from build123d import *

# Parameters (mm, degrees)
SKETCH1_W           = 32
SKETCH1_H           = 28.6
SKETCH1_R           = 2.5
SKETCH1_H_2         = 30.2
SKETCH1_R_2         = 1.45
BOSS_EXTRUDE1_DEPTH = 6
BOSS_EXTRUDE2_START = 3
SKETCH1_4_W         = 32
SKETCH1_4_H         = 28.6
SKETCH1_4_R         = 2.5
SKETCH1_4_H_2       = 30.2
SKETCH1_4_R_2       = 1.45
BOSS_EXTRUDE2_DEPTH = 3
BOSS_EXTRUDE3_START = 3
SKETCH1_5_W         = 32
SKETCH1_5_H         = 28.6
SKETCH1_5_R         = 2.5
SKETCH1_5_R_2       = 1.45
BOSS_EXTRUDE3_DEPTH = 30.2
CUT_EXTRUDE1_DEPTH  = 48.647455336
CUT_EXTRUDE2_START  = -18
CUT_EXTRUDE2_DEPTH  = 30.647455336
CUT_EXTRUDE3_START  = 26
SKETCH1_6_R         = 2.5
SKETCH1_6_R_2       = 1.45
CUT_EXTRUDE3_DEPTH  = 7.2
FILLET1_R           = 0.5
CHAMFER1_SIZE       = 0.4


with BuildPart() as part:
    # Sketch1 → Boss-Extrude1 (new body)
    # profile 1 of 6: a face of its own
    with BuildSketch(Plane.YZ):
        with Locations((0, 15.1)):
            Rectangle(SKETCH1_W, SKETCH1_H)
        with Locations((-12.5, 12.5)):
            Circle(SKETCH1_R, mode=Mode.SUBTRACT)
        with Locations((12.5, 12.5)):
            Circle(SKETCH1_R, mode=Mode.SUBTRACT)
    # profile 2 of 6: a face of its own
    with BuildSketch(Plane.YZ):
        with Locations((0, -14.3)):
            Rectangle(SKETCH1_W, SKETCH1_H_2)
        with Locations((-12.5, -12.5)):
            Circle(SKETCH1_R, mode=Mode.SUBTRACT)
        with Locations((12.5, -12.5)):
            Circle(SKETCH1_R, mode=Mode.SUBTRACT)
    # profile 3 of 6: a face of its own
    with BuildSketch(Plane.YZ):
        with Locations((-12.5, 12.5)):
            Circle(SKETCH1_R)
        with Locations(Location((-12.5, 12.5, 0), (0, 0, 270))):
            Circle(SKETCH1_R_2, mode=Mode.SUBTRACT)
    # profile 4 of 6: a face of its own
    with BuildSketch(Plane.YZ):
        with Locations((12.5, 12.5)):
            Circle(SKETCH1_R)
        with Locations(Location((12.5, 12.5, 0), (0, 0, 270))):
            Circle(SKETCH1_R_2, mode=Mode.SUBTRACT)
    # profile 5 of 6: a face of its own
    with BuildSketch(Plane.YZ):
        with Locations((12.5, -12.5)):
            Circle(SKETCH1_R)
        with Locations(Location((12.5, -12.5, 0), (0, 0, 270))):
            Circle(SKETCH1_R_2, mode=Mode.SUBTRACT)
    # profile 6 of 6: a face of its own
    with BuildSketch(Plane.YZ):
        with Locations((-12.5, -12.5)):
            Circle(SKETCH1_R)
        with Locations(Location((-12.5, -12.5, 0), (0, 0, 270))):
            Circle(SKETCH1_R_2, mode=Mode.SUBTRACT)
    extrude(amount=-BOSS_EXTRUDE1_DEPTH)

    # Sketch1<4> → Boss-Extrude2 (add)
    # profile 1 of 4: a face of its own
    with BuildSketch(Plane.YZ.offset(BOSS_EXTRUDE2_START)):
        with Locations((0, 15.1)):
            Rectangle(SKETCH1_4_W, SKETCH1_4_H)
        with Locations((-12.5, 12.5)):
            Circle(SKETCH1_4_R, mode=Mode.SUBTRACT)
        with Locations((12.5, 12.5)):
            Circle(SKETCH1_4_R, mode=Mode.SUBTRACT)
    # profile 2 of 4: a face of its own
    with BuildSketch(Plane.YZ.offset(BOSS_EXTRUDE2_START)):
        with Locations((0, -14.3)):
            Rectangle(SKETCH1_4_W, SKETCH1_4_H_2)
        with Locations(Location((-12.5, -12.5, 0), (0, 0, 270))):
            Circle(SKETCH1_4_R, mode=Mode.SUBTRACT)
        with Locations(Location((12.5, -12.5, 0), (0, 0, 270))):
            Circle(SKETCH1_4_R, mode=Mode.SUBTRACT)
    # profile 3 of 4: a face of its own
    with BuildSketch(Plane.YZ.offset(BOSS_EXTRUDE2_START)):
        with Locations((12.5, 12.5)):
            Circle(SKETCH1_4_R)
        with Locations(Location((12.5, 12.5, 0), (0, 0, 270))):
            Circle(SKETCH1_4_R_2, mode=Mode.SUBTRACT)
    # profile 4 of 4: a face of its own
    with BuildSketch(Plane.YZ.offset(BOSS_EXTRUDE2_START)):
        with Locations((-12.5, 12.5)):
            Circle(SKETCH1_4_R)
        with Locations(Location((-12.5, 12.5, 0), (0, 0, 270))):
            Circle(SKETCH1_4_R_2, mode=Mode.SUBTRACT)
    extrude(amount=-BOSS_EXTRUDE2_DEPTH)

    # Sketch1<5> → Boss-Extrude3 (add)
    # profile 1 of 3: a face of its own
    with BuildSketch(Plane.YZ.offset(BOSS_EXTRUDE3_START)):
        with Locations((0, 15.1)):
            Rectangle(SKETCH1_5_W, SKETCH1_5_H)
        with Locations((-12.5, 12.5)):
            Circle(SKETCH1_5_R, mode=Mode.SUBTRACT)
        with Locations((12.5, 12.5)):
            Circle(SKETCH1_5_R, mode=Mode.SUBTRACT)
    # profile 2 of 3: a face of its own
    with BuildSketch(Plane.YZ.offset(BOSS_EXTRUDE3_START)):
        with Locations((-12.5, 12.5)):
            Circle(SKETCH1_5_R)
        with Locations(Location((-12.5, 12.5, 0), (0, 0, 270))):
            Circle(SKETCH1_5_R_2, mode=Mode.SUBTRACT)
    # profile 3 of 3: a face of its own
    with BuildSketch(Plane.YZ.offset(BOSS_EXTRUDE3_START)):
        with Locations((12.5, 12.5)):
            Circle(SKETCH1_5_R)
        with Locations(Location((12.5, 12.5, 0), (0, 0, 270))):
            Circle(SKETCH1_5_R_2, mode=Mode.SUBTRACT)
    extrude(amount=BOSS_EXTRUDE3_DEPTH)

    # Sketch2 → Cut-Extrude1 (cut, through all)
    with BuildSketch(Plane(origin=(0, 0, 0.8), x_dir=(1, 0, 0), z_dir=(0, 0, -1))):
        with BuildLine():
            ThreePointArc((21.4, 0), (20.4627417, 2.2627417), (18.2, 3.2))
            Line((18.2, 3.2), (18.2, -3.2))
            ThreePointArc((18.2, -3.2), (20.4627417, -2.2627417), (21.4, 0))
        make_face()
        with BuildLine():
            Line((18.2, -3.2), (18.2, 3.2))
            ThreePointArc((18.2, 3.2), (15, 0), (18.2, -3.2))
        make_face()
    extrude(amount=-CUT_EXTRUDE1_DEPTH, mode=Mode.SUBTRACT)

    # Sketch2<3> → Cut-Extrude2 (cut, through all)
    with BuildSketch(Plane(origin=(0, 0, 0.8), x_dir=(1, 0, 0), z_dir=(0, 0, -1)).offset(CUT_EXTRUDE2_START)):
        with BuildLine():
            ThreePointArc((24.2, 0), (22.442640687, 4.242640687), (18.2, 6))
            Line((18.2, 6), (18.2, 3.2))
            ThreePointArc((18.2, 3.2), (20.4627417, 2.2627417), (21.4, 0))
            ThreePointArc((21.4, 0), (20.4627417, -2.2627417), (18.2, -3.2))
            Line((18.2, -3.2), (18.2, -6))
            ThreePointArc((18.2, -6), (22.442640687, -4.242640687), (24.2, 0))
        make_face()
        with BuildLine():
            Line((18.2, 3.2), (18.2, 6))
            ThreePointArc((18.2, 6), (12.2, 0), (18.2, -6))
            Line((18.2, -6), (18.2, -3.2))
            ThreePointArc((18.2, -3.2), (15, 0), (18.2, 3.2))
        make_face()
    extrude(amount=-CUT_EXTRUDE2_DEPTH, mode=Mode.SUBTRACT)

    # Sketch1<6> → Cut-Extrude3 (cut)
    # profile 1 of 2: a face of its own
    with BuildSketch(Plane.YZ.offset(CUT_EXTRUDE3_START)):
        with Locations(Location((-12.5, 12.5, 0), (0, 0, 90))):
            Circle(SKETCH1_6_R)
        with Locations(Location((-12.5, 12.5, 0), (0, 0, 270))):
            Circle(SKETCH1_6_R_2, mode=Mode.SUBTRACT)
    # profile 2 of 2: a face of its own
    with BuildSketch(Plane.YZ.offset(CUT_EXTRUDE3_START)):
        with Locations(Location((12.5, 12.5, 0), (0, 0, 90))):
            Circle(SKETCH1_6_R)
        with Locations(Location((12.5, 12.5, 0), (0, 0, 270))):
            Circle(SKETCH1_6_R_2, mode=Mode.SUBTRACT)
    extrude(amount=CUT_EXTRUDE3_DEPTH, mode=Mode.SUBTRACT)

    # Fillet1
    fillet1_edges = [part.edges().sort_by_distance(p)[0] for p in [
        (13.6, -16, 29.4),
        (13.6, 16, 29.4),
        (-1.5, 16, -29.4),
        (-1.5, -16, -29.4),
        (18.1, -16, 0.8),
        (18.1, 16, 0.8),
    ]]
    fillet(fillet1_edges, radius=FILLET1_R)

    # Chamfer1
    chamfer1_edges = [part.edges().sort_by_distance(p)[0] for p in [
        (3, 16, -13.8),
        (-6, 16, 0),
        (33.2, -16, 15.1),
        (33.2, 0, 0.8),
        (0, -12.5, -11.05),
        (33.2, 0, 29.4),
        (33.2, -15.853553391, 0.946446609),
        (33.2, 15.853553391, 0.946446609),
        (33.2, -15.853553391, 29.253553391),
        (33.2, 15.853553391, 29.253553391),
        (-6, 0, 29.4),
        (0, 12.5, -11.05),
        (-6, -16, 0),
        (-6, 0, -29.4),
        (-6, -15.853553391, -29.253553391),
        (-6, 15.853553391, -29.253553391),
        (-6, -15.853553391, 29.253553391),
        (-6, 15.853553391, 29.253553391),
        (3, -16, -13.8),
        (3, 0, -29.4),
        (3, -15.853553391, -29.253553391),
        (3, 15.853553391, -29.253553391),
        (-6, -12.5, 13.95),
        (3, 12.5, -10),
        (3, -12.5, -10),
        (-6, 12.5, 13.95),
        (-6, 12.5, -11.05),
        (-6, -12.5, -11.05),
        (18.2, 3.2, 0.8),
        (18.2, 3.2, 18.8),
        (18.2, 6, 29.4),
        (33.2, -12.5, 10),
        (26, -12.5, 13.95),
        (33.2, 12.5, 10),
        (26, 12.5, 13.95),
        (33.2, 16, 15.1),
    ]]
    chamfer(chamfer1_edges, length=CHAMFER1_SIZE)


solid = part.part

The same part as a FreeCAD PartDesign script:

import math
import FreeCAD as App
import Part
import Sketcher
from FreeCAD import Vector
Q = App.Units.Quantity


def edges_at(feature, points):
    """Names of the edges that pass closest to the given points."""
    edges = feature.Shape.Edges
    near = lambda p: min(range(len(edges)), key=lambda i: edges[i].distToShape(Part.Vertex(*p))[0])
    return sorted({f"Edge{near(p) + 1}" for p in points})

doc = App.newDocument("Part")
body = doc.addObject("PartDesign::Body", "Body")

sketch1 = body.newObject("Sketcher::SketchObject", "Sketch")
sketch1.AttachmentSupport = (doc.getObject("YZ_Plane"), [""])
sketch1.MapMode = "FlatFace"
sketch1.addGeometry([
    Part.LineSegment(Vector(-16, 29.4, 0), Vector(-16, -29.4, 0)),
    Part.LineSegment(Vector(-16, -29.4, 0), Vector(16, -29.4, 0)),
    Part.LineSegment(Vector(16, -29.4, 0), Vector(16, 29.4, 0)),
    Part.LineSegment(Vector(16, 29.4, 0), Vector(-16, 29.4, 0)),
    Part.Circle(Vector(-12.5, 12.5, 0), Vector(0, 0, 1), 1.45),
    Part.Circle(Vector(12.5, 12.5, 0), Vector(0, 0, 1), 1.45),
    Part.Circle(Vector(12.5, -12.5, 0), Vector(0, 0, 1), 1.45),
    Part.Circle(Vector(-12.5, -12.5, 0), Vector(0, 0, 1), 1.45),
], False)
sketch1.addConstraint([
    Sketcher.Constraint("Coincident", 0, 2, 1, 1),
    Sketcher.Constraint("Coincident", 1, 2, 2, 1),
    Sketcher.Constraint("Coincident", 2, 2, 3, 1),
    Sketcher.Constraint("Coincident", 3, 2, 0, 1),
    Sketcher.Constraint("Vertical", 0),
    Sketcher.Constraint("Horizontal", 1),
    Sketcher.Constraint("Vertical", 2),
    Sketcher.Constraint("Horizontal", 3),
    Sketcher.Constraint("Equal", 4, 5),
    Sketcher.Constraint("Equal", 5, 6),
    Sketcher.Constraint("Equal", 6, 7),
    Sketcher.Constraint("Symmetric", 4, 3, 6, 3, -1, 1),
    Sketcher.Constraint("Symmetric", 5, 3, 7, 3, -1, 1),
    Sketcher.Constraint("Symmetric", 0, 2, 2, 2, -1, 1),
    Sketcher.Constraint("Symmetric", 4, 3, 5, 3, -2),
    Sketcher.Constraint("Diameter", 4, Q("2.9 mm")),
    Sketcher.Constraint("DistanceX", 1, 1, 1, 2, Q("32 mm")),
    Sketcher.Constraint("DistanceY", 0, 2, 0, 1, Q("58.8 mm")),
    Sketcher.Constraint("DistanceX", 4, 3, 5, 3, Q("25 mm")),
    Sketcher.Constraint("DistanceY", 6, 3, 5, 3, Q("25 mm")),
])
pad1 = body.newObject("PartDesign::Pad", "Pad")
pad1.Profile = sketch1
pad1.Length = 6
pad1.Reversed = True

sketch2 = body.newObject("Sketcher::SketchObject", "Sketch001")
sketch2.AttachmentSupport = (doc.getObject("YZ_Plane"), [""])
sketch2.MapMode = "FlatFace"
sketch2.AttachmentOffset = App.Placement(Vector(0, 0, 3), App.Rotation())
sketch2.addGeometry([
    Part.LineSegment(Vector(-16, 29.4, 0), Vector(-16, -29.4, 0)),
    Part.LineSegment(Vector(-16, -29.4, 0), Vector(16, -29.4, 0)),
    Part.LineSegment(Vector(16, -29.4, 0), Vector(16, 29.4, 0)),
    Part.LineSegment(Vector(16, 29.4, 0), Vector(-16, 29.4, 0)),
    Part.Circle(Vector(12.5, -12.5, 0), Vector(0, 0, 1), 2.5),
    Part.Circle(Vector(-12.5, -12.5, 0), Vector(0, 0, 1), 2.5),
    Part.Circle(Vector(-12.5, 12.5, 0), Vector(0, 0, 1), 1.45),
    Part.Circle(Vector(12.5, 12.5, 0), Vector(0, 0, 1), 1.45),
], False)
sketch2.addConstraint([
    Sketcher.Constraint("Coincident", 0, 2, 1, 1),
    Sketcher.Constraint("Coincident", 1, 2, 2, 1),
    Sketcher.Constraint("Coincident", 2, 2, 3, 1),
    Sketcher.Constraint("Coincident", 3, 2, 0, 1),
    Sketcher.Constraint("Vertical", 0),
    Sketcher.Constraint("Horizontal", 1),
    Sketcher.Constraint("Vertical", 2),
    Sketcher.Constraint("Horizontal", 3),
    Sketcher.Constraint("Equal", 4, 5),
    Sketcher.Constraint("Equal", 6, 7),
    Sketcher.Constraint("Symmetric", 4, 3, 6, 3, -1, 1),
    Sketcher.Constraint("Symmetric", 5, 3, 7, 3, -1, 1),
    Sketcher.Constraint("Symmetric", 0, 2, 2, 2, -1, 1),
    Sketcher.Constraint("Symmetric", 4, 3, 5, 3, -2),
    Sketcher.Constraint("Diameter", 4, Q("5 mm")),
    Sketcher.Constraint("Diameter", 6, Q("2.9 mm")),
    Sketcher.Constraint("DistanceX", 1, 1, 1, 2, Q("32 mm")),
    Sketcher.Constraint("DistanceY", 0, 2, 0, 1, Q("58.8 mm")),
    Sketcher.Constraint("DistanceX", 5, 3, 4, 3, Q("25 mm")),
    Sketcher.Constraint("DistanceY", 5, 3, 6, 3, Q("25 mm")),
])
pad2 = body.newObject("PartDesign::Pad", "Pad001")
pad2.Profile = sketch2
pad2.Length = 3
pad2.Reversed = True

sketch3 = body.newObject("Sketcher::SketchObject", "Sketch002")
sketch3.AttachmentSupport = (doc.getObject("YZ_Plane"), [""])
sketch3.MapMode = "FlatFace"
sketch3.AttachmentOffset = App.Placement(Vector(0, 0, 3), App.Rotation())
sketch3.addGeometry([
    Part.LineSegment(Vector(-16, 29.4, 0), Vector(-16, 0.8, 0)),
    Part.LineSegment(Vector(-16, 0.8, 0), Vector(16, 0.8, 0)),
    Part.LineSegment(Vector(16, 0.8, 0), Vector(16, 29.4, 0)),
    Part.LineSegment(Vector(16, 29.4, 0), Vector(-16, 29.4, 0)),
    Part.Circle(Vector(-12.5, 12.5, 0), Vector(0, 0, 1), 1.45),
    Part.Circle(Vector(12.5, 12.5, 0), Vector(0, 0, 1), 1.45),
], False)
sketch3.addConstraint([
    Sketcher.Constraint("Coincident", 0, 2, 1, 1),
    Sketcher.Constraint("Coincident", 1, 2, 2, 1),
    Sketcher.Constraint("Coincident", 2, 2, 3, 1),
    Sketcher.Constraint("Coincident", 3, 2, 0, 1),
    Sketcher.Constraint("Vertical", 0),
    Sketcher.Constraint("Horizontal", 1),
    Sketcher.Constraint("Vertical", 2),
    Sketcher.Constraint("Horizontal", 3),
    Sketcher.Constraint("Equal", 4, 5),
    Sketcher.Constraint("Symmetric", 4, 3, 5, 3, -2),
    Sketcher.Constraint("Diameter", 4, Q("2.9 mm")),
    Sketcher.Constraint("DistanceX", 1, 1, 1, 2, Q("32 mm")),
    Sketcher.Constraint("DistanceY", 0, 2, 0, 1, Q("28.6 mm")),
    Sketcher.Constraint("DistanceX", 0, 2, -1, 1, Q("16 mm")),
    Sketcher.Constraint("DistanceX", 4, 3, 5, 3, Q("25 mm")),
    Sketcher.Constraint("DistanceY", -1, 1, 4, 3, Q("12.5 mm")),
    Sketcher.Constraint("DistanceY", -1, 1, 0, 2, Q("0.8 mm")),
])
pad3 = body.newObject("PartDesign::Pad", "Pad002")
pad3.Profile = sketch3
pad3.Length = 30.2

sketch4 = body.newObject("Sketcher::SketchObject", "Sketch003")
sketch4.AttachmentSupport = (doc.getObject("XY_Plane"), [""])
sketch4.MapMode = "FlatFace"
sketch4.AttachmentOffset = App.Placement(Vector(0, 0, 0.8), App.Rotation())
sketch4.addGeometry([
    Part.ArcOfCircle(Part.Circle(Vector(18.2, 0, 0), Vector(0, 0, 1), 3.2), math.radians(-90), math.radians(0)),
    Part.ArcOfCircle(Part.Circle(Vector(18.2, 0, 0), Vector(0, 0, 1), 3.2), math.radians(90), math.radians(270)),
    Part.ArcOfCircle(Part.Circle(Vector(18.2, 0, 0), Vector(0, 0, 1), 3.2), math.radians(0), math.radians(90)),
], False)
sketch4.addConstraint([
    Sketcher.Constraint("Tangent", 0, 1, 1, 2),
    Sketcher.Constraint("Tangent", 1, 1, 2, 2),
    Sketcher.Constraint("Tangent", 2, 1, 0, 2),
    Sketcher.Constraint("Symmetric", 0, 1, 1, 1, -1),
    Sketcher.Constraint("PointOnObject", 2, 1, -1),
    Sketcher.Constraint("Vertical", 2, 3, 0, 1),
    Sketcher.Constraint("Radius", 0, Q("3.2 mm")),
    Sketcher.Constraint("DistanceX", -1, 1, 0, 3, Q("18.2 mm")),
])
pocket1 = body.newObject("PartDesign::Pocket", "Pocket")
pocket1.Profile = sketch4
pocket1.Type = "ThroughAll"
pocket1.Reversed = True

sketch5 = body.newObject("Sketcher::SketchObject", "Sketch004")
sketch5.AttachmentSupport = (doc.getObject("XY_Plane"), [""])
sketch5.MapMode = "FlatFace"
sketch5.AttachmentOffset = App.Placement(Vector(0, 0, 18.8), App.Rotation())
sketch5.addGeometry([
    Part.ArcOfCircle(Part.Circle(Vector(18.2, 0, 0), Vector(0, 0, 1), 6), math.radians(-90), math.radians(0)),
    Part.ArcOfCircle(Part.Circle(Vector(18.2, 0, 0), Vector(0, 0, 1), 6), math.radians(90), math.radians(270)),
    Part.ArcOfCircle(Part.Circle(Vector(18.2, 0, 0), Vector(0, 0, 1), 6), math.radians(0), math.radians(90)),
    Part.ArcOfCircle(Part.Circle(Vector(18.2, 0, 0), Vector(0, 0, 1), 3.2), math.radians(0), math.radians(90)),
    Part.ArcOfCircle(Part.Circle(Vector(18.2, 0, 0), Vector(0, 0, 1), 3.2), math.radians(90), math.radians(270)),
    Part.ArcOfCircle(Part.Circle(Vector(18.2, 0, 0), Vector(0, 0, 1), 3.2), math.radians(-90), math.radians(0)),
], False)
sketch5.addConstraint([
    Sketcher.Constraint("Tangent", 0, 1, 1, 2),
    Sketcher.Constraint("Tangent", 1, 1, 2, 2),
    Sketcher.Constraint("Tangent", 2, 1, 0, 2),
    Sketcher.Constraint("Tangent", 3, 2, 4, 1),
    Sketcher.Constraint("Tangent", 4, 2, 5, 1),
    Sketcher.Constraint("Tangent", 5, 2, 3, 1),
    Sketcher.Constraint("Coincident", 3, 3, 0, 3),
    Sketcher.Constraint("Symmetric", 0, 1, 1, 1, -1),
    Sketcher.Constraint("PointOnObject", 2, 1, -1),
    Sketcher.Constraint("PointOnObject", 5, 2, -1),
    Sketcher.Constraint("Vertical", 5, 3, 0, 1),
    Sketcher.Constraint("Vertical", 1, 1, 3, 2),
    Sketcher.Constraint("Vertical", 3, 2, 4, 2),
    Sketcher.Constraint("Radius", 0, Q("6 mm")),
    Sketcher.Constraint("Radius", 3, Q("3.2 mm")),
    Sketcher.Constraint("DistanceX", -1, 1, 0, 3, Q("18.2 mm")),
])
pocket2 = body.newObject("PartDesign::Pocket", "Pocket001")
pocket2.Profile = sketch5
pocket2.Type = "ThroughAll"
pocket2.Reversed = True

sketch6 = body.newObject("Sketcher::SketchObject", "Sketch005")
sketch6.AttachmentSupport = (doc.getObject("YZ_Plane"), [""])
sketch6.MapMode = "FlatFace"
sketch6.AttachmentOffset = App.Placement(Vector(0, 0, 26), App.Rotation())
sketch6.addGeometry([
    Part.Circle(Vector(-12.5, 12.5, 0), Vector(0, 0, 1), 2.5),
    Part.Circle(Vector(-12.5, 12.5, 0), Vector(0, 0, 1), 1.45),
    Part.Circle(Vector(12.5, 12.5, 0), Vector(0, 0, 1), 2.5),
    Part.Circle(Vector(12.5, 12.5, 0), Vector(0, 0, 1), 1.45),
], False)
sketch6.addConstraint([
    Sketcher.Constraint("Coincident", 1, 3, 0, 3),
    Sketcher.Constraint("Coincident", 3, 3, 2, 3),
    Sketcher.Constraint("Equal", 0, 2),
    Sketcher.Constraint("Equal", 1, 3),
    Sketcher.Constraint("Symmetric", 0, 3, 2, 3, -2),
    Sketcher.Constraint("Diameter", 0, Q("5 mm")),
    Sketcher.Constraint("Diameter", 1, Q("2.9 mm")),
    Sketcher.Constraint("DistanceX", 0, 3, 2, 3, Q("25 mm")),
    Sketcher.Constraint("DistanceY", -1, 1, 0, 3, Q("12.5 mm")),
])
pocket3 = body.newObject("PartDesign::Pocket", "Pocket002")
pocket3.Profile = sketch6
pocket3.Length = 7.2
pocket3.Reversed = True
doc.recompute()

fillet = body.newObject("PartDesign::Fillet", "Fillet")
fillet.Base = (pocket3, edges_at(pocket3, [
    (13.6, -16, 29.4),
    (13.6, 16, 29.4),
    (-1.5, 16, -29.4),
    (-1.5, -16, -29.4),
    (18.1, -16, 0.8),
    (18.1, 16, 0.8),
]))
fillet.Radius = 0.5
doc.recompute()

chamfer = body.newObject("PartDesign::Chamfer", "Chamfer")
chamfer.Base = (fillet, edges_at(fillet, [
    (3, 16, -13.8),
    (-6, 16, 0),
    (33.2, -16, 15.1),
    (33.2, 0, 0.8),
    (0, -12.5, -11.05),
    (33.2, 0, 29.4),
    (33.2, -15.854, 0.946),
    (33.2, 15.854, 0.946),
    (33.2, -15.854, 29.254),
    (33.2, 15.854, 29.254),
    (-6, 0, 29.4),
    (0, 12.5, -11.05),
    (-6, -16, 0),
    (-6, 0, -29.4),
    (-6, -15.854, -29.254),
    (-6, 15.854, -29.254),
    (-6, -15.854, 29.254),
    (-6, 15.854, 29.254),
    (3, -16, -13.8),
    (3, 0, -29.4),
    (3, -15.854, -29.254),
    (3, 15.854, -29.254),
    (-6, -12.5, 13.95),
    (3, 12.5, -10),
    (3, -12.5, -10),
    (-6, 12.5, 13.95),
    (-6, 12.5, -11.05),
    (-6, -12.5, -11.05),
    (20.463, 2.263, 0.8),
    (20.463, 2.263, 18.8),
    (22.443, 4.243, 29.4),
    (33.2, -12.5, 10),
    (26, -12.5, 13.95),
    (33.2, 12.5, 10),
    (26, 12.5, 13.95),
    (33.2, 16, 15.1),
]))
chamfer.Size = 0.4

doc.recompute()
